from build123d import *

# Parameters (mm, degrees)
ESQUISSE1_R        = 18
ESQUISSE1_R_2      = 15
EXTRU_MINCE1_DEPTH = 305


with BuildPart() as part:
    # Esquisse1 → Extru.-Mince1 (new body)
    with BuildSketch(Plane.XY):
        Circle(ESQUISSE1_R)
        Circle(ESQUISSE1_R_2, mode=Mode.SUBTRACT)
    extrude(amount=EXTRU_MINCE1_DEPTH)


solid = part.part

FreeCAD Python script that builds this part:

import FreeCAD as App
import Part
import Sketcher

V = App.Vector

doc = App.newDocument("Part")
body = doc.addObject("PartDesign::Body", "Body")

sketch1 = body.newObject("Sketcher::SketchObject", "Sketch")
sketch1.AttachmentSupport = (doc.getObject("XY_Plane"), [""])
sketch1.MapMode = "FlatFace"
sketch1.addGeometry(Part.Circle(V(0, 0, 0), V(0, 0, 1), 18), False)
sketch1.addGeometry(Part.Circle(V(0, 0, 0), V(0, 0, 1), 15), False)
sketch1.addConstraint(Sketcher.Constraint("Coincident", 0, 3, -1, 1))
sketch1.addConstraint(Sketcher.Constraint("Coincident", 1, 3, -1, 1))
sketch1.addConstraint(Sketcher.Constraint("Diameter", 0, 36.0))
sketch1.addConstraint(Sketcher.Constraint("Diameter", 1, 30.0))
pad1 = body.newObject("PartDesign::Pad", "Pad")
pad1.Profile = sketch1
pad1.Length = 305

doc.recompute()
